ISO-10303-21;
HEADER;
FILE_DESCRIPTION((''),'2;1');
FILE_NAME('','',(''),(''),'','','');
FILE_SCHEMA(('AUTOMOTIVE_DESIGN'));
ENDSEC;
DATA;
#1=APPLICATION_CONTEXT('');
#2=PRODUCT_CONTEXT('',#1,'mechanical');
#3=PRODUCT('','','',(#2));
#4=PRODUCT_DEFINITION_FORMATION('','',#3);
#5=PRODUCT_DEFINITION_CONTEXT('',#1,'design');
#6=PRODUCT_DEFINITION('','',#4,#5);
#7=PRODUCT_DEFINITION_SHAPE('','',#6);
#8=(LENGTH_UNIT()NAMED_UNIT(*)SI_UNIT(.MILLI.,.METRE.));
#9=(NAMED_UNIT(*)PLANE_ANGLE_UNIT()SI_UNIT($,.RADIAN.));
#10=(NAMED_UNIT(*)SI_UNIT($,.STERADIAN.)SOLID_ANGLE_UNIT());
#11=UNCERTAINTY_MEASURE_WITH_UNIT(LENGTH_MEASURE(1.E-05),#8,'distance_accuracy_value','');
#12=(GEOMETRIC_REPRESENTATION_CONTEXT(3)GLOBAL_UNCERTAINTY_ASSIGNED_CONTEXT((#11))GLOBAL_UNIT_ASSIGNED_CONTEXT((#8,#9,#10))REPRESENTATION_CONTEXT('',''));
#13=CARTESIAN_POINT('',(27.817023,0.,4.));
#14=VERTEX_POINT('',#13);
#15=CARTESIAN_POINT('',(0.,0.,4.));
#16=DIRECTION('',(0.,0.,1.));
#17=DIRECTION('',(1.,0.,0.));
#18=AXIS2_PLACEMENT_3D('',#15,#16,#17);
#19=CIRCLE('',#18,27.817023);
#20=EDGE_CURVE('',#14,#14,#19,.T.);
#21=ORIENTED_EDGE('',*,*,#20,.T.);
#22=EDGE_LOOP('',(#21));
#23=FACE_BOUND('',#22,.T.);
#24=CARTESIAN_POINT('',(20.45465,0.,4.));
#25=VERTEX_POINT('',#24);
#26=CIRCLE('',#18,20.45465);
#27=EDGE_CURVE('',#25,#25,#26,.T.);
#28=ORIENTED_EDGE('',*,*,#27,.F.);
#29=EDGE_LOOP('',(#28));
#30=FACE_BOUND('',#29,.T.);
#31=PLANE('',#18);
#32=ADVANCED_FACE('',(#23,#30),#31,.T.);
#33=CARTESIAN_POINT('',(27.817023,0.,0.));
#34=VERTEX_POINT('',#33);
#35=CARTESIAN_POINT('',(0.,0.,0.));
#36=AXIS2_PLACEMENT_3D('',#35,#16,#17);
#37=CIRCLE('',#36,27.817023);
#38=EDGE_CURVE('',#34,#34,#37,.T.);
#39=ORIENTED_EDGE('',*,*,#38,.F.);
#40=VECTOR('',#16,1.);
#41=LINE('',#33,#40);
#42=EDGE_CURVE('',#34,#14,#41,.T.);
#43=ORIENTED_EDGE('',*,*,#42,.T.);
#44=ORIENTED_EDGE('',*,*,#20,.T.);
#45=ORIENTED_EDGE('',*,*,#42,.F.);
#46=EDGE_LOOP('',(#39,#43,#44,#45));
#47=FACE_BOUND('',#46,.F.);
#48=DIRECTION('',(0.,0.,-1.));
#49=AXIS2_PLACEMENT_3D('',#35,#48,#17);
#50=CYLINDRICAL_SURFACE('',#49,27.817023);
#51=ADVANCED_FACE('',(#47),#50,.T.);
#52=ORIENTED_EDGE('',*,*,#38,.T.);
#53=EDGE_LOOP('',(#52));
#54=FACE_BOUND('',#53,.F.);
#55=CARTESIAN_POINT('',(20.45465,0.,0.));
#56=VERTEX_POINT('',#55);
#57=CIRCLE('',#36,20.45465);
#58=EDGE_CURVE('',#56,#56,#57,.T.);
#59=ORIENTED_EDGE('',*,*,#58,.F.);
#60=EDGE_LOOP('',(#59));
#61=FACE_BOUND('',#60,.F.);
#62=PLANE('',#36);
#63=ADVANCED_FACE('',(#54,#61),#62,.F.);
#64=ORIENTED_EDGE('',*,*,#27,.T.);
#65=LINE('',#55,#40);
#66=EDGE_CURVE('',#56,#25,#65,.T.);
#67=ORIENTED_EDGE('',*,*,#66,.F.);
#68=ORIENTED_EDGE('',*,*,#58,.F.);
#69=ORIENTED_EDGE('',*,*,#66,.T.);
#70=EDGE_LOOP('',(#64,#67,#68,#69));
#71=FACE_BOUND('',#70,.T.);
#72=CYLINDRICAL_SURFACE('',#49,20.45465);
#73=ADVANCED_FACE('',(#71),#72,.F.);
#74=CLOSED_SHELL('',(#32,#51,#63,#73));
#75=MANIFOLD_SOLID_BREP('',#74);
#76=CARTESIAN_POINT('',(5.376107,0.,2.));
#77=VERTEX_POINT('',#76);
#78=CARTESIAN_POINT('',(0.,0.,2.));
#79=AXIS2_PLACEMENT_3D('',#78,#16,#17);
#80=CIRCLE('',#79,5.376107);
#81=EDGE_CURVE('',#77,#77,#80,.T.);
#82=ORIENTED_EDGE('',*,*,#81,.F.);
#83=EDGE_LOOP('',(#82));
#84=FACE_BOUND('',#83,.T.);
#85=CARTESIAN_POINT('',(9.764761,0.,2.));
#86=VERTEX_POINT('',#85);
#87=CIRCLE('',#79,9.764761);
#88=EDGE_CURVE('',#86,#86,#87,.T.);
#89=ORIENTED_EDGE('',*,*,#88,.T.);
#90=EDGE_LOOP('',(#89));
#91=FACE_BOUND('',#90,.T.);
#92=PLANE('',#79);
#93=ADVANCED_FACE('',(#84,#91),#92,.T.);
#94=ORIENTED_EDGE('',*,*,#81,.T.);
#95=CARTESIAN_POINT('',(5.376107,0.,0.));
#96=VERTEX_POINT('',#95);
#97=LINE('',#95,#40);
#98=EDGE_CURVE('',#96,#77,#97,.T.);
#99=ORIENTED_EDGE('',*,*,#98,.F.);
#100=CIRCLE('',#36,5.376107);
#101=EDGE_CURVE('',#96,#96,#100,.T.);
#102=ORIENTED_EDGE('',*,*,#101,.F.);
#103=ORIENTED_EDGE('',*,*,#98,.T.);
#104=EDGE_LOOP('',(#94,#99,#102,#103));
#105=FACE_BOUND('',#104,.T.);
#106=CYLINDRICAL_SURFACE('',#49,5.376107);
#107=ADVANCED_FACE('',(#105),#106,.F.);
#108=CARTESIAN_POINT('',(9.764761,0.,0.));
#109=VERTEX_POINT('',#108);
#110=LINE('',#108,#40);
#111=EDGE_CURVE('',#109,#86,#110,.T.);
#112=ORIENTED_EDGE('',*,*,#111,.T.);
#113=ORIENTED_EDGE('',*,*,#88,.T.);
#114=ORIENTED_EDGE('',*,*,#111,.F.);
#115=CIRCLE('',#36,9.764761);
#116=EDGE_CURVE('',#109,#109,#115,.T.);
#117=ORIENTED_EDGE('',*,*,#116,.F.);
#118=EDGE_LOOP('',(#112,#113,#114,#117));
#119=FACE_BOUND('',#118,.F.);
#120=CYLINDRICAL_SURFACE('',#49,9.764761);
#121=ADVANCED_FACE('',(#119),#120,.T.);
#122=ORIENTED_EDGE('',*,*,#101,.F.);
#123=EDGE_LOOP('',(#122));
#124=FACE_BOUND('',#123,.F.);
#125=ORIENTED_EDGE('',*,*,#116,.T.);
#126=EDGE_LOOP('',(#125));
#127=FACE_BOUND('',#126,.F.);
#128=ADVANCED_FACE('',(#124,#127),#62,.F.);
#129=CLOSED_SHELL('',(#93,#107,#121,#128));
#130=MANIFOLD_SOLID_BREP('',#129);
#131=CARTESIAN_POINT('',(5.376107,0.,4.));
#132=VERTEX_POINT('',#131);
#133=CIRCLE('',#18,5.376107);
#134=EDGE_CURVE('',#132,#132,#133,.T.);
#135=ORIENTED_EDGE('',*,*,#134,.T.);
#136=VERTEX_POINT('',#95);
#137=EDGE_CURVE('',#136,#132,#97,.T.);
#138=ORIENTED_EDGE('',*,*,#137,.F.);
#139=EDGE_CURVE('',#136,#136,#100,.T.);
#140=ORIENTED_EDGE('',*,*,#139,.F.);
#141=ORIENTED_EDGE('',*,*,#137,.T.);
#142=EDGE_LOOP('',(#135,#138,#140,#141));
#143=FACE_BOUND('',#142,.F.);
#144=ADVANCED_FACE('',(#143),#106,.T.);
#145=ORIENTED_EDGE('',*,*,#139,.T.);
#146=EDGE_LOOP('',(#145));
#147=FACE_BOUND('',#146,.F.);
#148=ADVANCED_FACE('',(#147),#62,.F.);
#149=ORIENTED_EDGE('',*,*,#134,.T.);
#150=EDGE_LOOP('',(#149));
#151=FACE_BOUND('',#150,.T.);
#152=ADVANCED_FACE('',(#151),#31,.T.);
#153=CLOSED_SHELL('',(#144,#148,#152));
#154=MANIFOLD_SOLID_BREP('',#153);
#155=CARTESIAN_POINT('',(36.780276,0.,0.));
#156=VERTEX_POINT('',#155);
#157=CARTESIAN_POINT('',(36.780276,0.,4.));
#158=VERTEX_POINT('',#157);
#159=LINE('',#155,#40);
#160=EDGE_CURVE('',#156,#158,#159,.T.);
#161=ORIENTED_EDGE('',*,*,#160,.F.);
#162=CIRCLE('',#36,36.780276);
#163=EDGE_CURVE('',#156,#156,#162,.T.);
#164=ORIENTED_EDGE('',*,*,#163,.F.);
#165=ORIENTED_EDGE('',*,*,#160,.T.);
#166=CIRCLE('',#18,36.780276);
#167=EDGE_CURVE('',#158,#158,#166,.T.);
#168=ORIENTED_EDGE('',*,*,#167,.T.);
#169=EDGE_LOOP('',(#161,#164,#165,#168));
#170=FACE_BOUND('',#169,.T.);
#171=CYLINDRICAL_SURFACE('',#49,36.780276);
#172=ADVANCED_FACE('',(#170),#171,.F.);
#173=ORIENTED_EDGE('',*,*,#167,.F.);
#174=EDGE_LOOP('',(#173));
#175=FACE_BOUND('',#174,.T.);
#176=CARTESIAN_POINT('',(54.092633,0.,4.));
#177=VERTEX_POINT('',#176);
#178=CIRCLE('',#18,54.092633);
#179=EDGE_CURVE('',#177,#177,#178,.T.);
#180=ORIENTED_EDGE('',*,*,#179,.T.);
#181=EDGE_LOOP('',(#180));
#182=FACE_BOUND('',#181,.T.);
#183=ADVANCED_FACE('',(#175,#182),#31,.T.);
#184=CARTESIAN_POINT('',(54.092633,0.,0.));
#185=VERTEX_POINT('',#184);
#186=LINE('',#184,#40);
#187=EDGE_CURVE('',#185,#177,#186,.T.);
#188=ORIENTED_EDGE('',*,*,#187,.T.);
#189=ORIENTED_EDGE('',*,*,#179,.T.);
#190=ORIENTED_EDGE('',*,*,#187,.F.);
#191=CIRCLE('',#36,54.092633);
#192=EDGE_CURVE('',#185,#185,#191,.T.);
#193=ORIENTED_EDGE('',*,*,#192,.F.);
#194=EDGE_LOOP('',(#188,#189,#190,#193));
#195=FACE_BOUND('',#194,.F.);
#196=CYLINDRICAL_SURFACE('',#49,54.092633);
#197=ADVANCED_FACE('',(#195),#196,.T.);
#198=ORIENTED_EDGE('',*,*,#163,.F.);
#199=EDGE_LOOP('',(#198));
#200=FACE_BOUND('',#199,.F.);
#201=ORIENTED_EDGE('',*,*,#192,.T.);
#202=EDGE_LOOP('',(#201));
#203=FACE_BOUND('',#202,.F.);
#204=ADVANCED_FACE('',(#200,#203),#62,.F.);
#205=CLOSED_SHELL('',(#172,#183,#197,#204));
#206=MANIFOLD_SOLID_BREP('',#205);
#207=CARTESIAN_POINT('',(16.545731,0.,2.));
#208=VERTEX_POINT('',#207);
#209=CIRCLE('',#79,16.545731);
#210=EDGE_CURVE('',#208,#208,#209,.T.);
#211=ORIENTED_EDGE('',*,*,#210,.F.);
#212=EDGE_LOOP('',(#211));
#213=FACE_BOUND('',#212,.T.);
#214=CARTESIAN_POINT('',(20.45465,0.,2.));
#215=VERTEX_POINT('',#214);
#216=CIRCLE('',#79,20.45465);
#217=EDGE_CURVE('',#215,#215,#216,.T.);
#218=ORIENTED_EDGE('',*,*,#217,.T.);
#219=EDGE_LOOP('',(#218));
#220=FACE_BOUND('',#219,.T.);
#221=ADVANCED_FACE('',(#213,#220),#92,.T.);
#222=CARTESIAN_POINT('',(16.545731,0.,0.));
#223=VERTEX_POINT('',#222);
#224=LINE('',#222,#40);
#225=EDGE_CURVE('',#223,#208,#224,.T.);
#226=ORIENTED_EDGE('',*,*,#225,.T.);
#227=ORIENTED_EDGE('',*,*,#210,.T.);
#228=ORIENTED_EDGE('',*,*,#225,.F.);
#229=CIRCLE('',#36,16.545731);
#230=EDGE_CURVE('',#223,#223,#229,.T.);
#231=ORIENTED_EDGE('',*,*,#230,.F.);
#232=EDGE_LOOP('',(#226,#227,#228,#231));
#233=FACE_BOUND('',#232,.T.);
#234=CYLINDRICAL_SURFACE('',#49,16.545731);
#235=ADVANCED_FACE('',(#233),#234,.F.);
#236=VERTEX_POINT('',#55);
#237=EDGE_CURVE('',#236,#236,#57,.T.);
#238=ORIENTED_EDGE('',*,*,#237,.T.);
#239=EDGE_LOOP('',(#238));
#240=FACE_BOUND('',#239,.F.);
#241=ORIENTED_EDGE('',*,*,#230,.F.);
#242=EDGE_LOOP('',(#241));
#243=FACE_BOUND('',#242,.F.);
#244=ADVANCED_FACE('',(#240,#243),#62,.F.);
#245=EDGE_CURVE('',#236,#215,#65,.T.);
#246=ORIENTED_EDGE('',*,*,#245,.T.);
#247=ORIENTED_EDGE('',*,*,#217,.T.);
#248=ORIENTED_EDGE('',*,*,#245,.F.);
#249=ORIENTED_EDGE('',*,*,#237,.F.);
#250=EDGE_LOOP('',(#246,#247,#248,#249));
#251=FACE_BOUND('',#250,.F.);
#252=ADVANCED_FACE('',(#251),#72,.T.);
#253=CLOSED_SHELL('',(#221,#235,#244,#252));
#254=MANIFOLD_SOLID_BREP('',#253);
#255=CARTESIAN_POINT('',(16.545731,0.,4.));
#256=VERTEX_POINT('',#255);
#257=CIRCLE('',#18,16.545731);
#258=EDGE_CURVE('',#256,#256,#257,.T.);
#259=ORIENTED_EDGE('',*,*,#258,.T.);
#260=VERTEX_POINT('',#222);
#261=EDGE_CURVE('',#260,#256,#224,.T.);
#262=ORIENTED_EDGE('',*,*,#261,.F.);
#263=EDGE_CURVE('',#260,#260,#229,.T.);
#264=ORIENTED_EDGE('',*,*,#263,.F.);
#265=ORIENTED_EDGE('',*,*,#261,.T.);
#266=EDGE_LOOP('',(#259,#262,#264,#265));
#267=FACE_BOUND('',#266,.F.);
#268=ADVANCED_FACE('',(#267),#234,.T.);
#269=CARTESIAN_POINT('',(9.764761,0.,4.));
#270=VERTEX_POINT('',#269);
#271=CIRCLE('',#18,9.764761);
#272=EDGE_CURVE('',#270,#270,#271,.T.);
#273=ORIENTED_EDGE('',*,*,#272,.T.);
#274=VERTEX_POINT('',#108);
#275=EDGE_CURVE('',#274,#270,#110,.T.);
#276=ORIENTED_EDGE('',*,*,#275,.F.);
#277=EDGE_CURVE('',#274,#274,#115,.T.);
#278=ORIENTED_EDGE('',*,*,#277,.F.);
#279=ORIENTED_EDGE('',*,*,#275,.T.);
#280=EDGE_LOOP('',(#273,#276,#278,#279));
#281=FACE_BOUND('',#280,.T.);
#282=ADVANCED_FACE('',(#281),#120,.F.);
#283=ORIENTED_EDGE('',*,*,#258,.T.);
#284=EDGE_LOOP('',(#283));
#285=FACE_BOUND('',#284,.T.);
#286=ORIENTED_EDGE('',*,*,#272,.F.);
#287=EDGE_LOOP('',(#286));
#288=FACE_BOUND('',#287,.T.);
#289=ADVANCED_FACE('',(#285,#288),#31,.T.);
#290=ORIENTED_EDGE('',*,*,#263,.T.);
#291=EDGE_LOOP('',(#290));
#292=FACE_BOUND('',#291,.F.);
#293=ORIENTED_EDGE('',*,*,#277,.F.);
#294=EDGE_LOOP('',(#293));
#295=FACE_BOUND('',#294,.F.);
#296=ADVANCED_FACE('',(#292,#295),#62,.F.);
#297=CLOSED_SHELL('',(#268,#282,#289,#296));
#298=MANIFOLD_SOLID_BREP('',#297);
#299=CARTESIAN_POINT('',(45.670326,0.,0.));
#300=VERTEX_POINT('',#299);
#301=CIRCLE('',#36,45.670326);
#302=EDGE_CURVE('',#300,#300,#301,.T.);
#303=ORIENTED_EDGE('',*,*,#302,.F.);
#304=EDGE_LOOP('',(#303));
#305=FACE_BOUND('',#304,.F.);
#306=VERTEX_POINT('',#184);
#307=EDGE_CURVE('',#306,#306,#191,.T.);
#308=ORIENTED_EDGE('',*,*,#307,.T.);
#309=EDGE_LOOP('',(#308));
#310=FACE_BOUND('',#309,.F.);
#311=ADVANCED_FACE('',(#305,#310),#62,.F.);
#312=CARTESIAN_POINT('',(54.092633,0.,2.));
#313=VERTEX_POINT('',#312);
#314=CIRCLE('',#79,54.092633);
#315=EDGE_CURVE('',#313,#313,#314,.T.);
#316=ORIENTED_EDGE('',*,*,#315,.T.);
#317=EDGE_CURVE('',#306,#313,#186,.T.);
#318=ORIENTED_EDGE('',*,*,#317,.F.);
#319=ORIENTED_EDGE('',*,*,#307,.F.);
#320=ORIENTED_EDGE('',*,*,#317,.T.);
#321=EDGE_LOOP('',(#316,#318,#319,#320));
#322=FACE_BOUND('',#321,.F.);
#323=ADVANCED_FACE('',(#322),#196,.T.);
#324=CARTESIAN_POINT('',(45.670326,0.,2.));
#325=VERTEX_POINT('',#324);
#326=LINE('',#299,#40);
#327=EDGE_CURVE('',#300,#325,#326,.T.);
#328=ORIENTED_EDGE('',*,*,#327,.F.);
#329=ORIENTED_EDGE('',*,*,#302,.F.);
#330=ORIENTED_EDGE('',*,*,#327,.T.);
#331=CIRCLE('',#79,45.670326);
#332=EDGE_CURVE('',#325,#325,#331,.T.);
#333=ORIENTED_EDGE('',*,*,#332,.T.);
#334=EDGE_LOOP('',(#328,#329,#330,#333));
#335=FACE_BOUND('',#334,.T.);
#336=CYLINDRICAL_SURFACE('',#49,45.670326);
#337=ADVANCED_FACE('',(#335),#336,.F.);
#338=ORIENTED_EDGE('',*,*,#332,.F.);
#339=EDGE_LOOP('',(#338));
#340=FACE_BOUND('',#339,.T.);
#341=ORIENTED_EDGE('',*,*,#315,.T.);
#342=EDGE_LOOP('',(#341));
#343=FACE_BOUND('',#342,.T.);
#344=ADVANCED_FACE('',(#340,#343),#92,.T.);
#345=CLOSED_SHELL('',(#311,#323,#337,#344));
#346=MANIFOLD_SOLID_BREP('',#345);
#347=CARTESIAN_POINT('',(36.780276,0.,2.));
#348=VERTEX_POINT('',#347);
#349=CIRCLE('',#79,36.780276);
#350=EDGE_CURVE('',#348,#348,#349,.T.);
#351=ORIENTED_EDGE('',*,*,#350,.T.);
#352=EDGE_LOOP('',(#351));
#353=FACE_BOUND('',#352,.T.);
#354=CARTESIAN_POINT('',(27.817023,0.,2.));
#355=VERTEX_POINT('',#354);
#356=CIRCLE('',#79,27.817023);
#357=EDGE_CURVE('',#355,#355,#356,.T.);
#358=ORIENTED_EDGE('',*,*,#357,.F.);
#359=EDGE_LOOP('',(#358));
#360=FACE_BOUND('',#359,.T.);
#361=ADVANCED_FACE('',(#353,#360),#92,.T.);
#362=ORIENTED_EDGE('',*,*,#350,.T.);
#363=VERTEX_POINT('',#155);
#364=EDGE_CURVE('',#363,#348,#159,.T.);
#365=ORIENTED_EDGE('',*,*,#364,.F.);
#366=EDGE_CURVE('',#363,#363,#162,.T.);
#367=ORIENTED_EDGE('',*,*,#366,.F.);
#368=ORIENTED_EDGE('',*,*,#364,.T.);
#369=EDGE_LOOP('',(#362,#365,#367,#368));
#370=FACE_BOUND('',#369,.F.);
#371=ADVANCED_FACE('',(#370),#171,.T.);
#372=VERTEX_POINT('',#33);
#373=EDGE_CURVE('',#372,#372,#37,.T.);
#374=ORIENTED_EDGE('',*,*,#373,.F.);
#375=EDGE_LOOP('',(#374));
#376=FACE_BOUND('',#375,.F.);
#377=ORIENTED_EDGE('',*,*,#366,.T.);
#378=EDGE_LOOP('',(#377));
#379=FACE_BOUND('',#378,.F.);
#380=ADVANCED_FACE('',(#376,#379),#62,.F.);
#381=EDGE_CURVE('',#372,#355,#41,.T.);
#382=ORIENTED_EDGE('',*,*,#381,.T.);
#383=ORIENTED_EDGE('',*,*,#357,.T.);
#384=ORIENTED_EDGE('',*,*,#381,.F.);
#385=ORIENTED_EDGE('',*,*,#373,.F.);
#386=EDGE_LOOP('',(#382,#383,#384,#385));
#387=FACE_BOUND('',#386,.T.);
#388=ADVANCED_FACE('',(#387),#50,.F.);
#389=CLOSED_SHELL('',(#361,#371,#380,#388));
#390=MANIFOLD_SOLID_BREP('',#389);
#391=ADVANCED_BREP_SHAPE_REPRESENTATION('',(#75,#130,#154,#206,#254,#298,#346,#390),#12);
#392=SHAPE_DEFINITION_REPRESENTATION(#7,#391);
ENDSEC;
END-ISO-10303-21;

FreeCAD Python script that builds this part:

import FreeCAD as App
import Part
import Sketcher

V = App.Vector

doc = App.newDocument("Part")
params = doc.addObject("Spreadsheet::Sheet", "Params")
for row, (alias, value) in enumerate([
    ("pad1_length", "2 mm"),
    ("pad2_length", "2 mm"),
    ("pad3_length", "2 mm"),
    ("pad4_length", "2 mm"),
    ("pad5_length", "4 mm"),
    ("pad6_length", "4 mm"),
    ("pad7_length", "4 mm"),
    ("pad8_length", "4 mm"),
], start=1):
    params.set(f"A{row}", alias)
    params.set(f"B{row}", "=" + value)
    params.setAlias(f"B{row}", alias)

body = doc.addObject("PartDesign::Body", "Body")

# Sketch on XY plane
sketch1 = body.newObject("Sketcher::SketchObject", "Sketch")
sketch1.AttachmentSupport = (doc.getObject("XY_Plane"), [""])
sketch1.MapMode = "FlatFace"
sketch1.addGeometry(Part.Circle(V(0, 0, 0), V(0, 0, 1), 10), False)
sketch1.addGeometry(Part.Circle(V(0, 0, 0), V(0, 0, 1), 5), False)
sketch1.addConstraint(Sketcher.Constraint("Coincident", 0, 3, -1, 1))
sketch1.addConstraint(Sketcher.Constraint("Coincident", 1, 3, -1, 1))
sketch1.addConstraint(Sketcher.Constraint("Diameter", 0, 19.529523))
sketch1.addConstraint(Sketcher.Constraint("Diameter", 1, 10.752213))
pad1 = body.newObject("PartDesign::Pad", "Pad")
pad1.Profile = sketch1
pad1.setExpression("Length", "Params.pad1_length")
body2 = doc.addObject("PartDesign::Body", "Body001")

# Sketch on XY plane
sketch2 = body2.newObject("Sketcher::SketchObject", "Sketch001")
sketch2.AttachmentSupport = (doc.getObject("XY_Plane001"), [""])
sketch2.MapMode = "FlatFace"
sketch2.addGeometry(Part.Circle(V(0, 0, 0), V(0, 0, 1), 37), False)
sketch2.addGeometry(Part.Circle(V(0, 0, 0), V(0, 0, 1), 28), False)
sketch2.addConstraint(Sketcher.Constraint("Coincident", 0, 3, -1, 1))
sketch2.addConstraint(Sketcher.Constraint("Coincident", 1, 3, -1, 1))
sketch2.addConstraint(Sketcher.Constraint("Diameter", 0, 73.560553))
sketch2.addConstraint(Sketcher.Constraint("Diameter", 1, 55.634046))
pad2 = body2.newObject("PartDesign::Pad", "Pad001")
pad2.Profile = sketch2
pad2.setExpression("Length", "Params.pad2_length")
body3 = doc.addObject("PartDesign::Body", "Body002")

# Sketch on XY plane
sketch3 = body3.newObject("Sketcher::SketchObject", "Sketch002")
sketch3.AttachmentSupport = (doc.getObject("XY_Plane002"), [""])
sketch3.MapMode = "FlatFace"
sketch3.addGeometry(Part.Circle(V(0, 0, 0), V(0, 0, 1), 20), False)
sketch3.addGeometry(Part.Circle(V(0, 0, 0), V(0, 0, 1), 17), False)
sketch3.addConstraint(Sketcher.Constraint("Coincident", 0, 3, -1, 1))
sketch3.addConstraint(Sketcher.Constraint("Coincident", 1, 3, -1, 1))
sketch3.addConstraint(Sketcher.Constraint("Diameter", 0, 40.9093))
sketch3.addConstraint(Sketcher.Constraint("Diameter", 1, 33.091461))
pad3 = body3.newObject("PartDesign::Pad", "Pad002")
pad3.Profile = sketch3
pad3.setExpression("Length", "Params.pad3_length")
body4 = doc.addObject("PartDesign::Body", "Body003")

# Sketch on XY plane
sketch4 = body4.newObject("Sketcher::SketchObject", "Sketch003")
sketch4.AttachmentSupport = (doc.getObject("XY_Plane003"), [""])
sketch4.MapMode = "FlatFace"
sketch4.addGeometry(Part.Circle(V(0, 0, 0), V(0, 0, 1), 54), False)
sketch4.addGeometry(Part.Circle(V(0, 0, 0), V(0, 0, 1), 46), False)
sketch4.addConstraint(Sketcher.Constraint("Coincident", 0, 3, -1, 1))
sketch4.addConstraint(Sketcher.Constraint("Coincident", 1, 3, -1, 1))
sketch4.addConstraint(Sketcher.Constraint("Diameter", 0, 108.185265))
sketch4.addConstraint(Sketcher.Constraint("Diameter", 1, 91.340652))
pad4 = body4.newObject("PartDesign::Pad", "Pad003")
pad4.Profile = sketch4
pad4.setExpression("Length", "Params.pad4_length")
body5 = doc.addObject("PartDesign::Body", "Body004")

# Sketch on XY plane
sketch5 = body5.newObject("Sketcher::SketchObject", "Sketch004")
sketch5.AttachmentSupport = (doc.getObject("XY_Plane004"), [""])
sketch5.MapMode = "FlatFace"
sketch5.addGeometry(Part.Circle(V(0, 0, 0), V(0, 0, 1), 54), False)
sketch5.addGeometry(Part.Circle(V(0, 0, 0), V(0, 0, 1), 37), False)
sketch5.addConstraint(Sketcher.Constraint("Coincident", 0, 3, -1, 1))
sketch5.addConstraint(Sketcher.Constraint("Coincident", 1, 3, -1, 1))
sketch5.addConstraint(Sketcher.Constraint("Diameter", 0, 108.185265))
sketch5.addConstraint(Sketcher.Constraint("Diameter", 1, 73.560553))
pad5 = body5.newObject("PartDesign::Pad", "Pad004")
pad5.Profile = sketch5
pad5.setExpression("Length", "Params.pad5_length")
body6 = doc.addObject("PartDesign::Body", "Body005")

# Sketch on XY plane
sketch6 = body6.newObject("Sketcher::SketchObject", "Sketch005")
sketch6.AttachmentSupport = (doc.getObject("XY_Plane005"), [""])
sketch6.MapMode = "FlatFace"
sketch6.addGeometry(Part.Circle(V(0, 0, 0), V(0, 0, 1), 28), False)
sketch6.addGeometry(Part.Circle(V(0, 0, 0), V(0, 0, 1), 20), False)
sketch6.addConstraint(Sketcher.Constraint("Coincident", 0, 3, -1, 1))
sketch6.addConstraint(Sketcher.Constraint("Coincident", 1, 3, -1, 1))
sketch6.addConstraint(Sketcher.Constraint("Diameter", 1, 40.9093))
sketch6.addConstraint(Sketcher.Constraint("Diameter", 0, 55.634046))
pad6 = body6.newObject("PartDesign::Pad", "Pad005")
pad6.Profile = sketch6
pad6.setExpression("Length", "Params.pad6_length")
body7 = doc.addObject("PartDesign::Body", "Body006")

# Sketch on XY plane
sketch7 = body7.newObject("Sketcher::SketchObject", "Sketch006")
sketch7.AttachmentSupport = (doc.getObject("XY_Plane006"), [""])
sketch7.MapMode = "FlatFace"
sketch7.addGeometry(Part.Circle(V(0, 0, 0), V(0, 0, 1), 17), False)
sketch7.addGeometry(Part.Circle(V(0, 0, 0), V(0, 0, 1), 10), False)
sketch7.addConstraint(Sketcher.Constraint("Coincident", 0, 3, -1, 1))
sketch7.addConstraint(Sketcher.Constraint("Coincident", 1, 3, -1, 1))
sketch7.addConstraint(Sketcher.Constraint("Diameter", 0, 33.091461))
sketch7.addConstraint(Sketcher.Constraint("Diameter", 1, 19.529523))
pad7 = body7.newObject("PartDesign::Pad", "Pad006")
pad7.Profile = sketch7
pad7.setExpression("Length", "Params.pad7_length")
body8 = doc.addObject("PartDesign::Body", "Body007")

# Sketch on XY plane
sketch8 = body8.newObject("Sketcher::SketchObject", "Sketch007")
sketch8.AttachmentSupport = (doc.getObject("XY_Plane007"), [""])
sketch8.MapMode = "FlatFace"
sketch8.addGeometry(Part.Circle(V(0, 0, 0), V(0, 0, 1), 5), False)
sketch8.addConstraint(Sketcher.Constraint("Coincident", 0, 3, -1, 1))
sketch8.addConstraint(Sketcher.Constraint("Diameter", 0, 10.752213))
pad8 = body8.newObject("PartDesign::Pad", "Pad007")
pad8.Profile = sketch8
pad8.setExpression("Length", "Params.pad8_length")

doc.recompute()
